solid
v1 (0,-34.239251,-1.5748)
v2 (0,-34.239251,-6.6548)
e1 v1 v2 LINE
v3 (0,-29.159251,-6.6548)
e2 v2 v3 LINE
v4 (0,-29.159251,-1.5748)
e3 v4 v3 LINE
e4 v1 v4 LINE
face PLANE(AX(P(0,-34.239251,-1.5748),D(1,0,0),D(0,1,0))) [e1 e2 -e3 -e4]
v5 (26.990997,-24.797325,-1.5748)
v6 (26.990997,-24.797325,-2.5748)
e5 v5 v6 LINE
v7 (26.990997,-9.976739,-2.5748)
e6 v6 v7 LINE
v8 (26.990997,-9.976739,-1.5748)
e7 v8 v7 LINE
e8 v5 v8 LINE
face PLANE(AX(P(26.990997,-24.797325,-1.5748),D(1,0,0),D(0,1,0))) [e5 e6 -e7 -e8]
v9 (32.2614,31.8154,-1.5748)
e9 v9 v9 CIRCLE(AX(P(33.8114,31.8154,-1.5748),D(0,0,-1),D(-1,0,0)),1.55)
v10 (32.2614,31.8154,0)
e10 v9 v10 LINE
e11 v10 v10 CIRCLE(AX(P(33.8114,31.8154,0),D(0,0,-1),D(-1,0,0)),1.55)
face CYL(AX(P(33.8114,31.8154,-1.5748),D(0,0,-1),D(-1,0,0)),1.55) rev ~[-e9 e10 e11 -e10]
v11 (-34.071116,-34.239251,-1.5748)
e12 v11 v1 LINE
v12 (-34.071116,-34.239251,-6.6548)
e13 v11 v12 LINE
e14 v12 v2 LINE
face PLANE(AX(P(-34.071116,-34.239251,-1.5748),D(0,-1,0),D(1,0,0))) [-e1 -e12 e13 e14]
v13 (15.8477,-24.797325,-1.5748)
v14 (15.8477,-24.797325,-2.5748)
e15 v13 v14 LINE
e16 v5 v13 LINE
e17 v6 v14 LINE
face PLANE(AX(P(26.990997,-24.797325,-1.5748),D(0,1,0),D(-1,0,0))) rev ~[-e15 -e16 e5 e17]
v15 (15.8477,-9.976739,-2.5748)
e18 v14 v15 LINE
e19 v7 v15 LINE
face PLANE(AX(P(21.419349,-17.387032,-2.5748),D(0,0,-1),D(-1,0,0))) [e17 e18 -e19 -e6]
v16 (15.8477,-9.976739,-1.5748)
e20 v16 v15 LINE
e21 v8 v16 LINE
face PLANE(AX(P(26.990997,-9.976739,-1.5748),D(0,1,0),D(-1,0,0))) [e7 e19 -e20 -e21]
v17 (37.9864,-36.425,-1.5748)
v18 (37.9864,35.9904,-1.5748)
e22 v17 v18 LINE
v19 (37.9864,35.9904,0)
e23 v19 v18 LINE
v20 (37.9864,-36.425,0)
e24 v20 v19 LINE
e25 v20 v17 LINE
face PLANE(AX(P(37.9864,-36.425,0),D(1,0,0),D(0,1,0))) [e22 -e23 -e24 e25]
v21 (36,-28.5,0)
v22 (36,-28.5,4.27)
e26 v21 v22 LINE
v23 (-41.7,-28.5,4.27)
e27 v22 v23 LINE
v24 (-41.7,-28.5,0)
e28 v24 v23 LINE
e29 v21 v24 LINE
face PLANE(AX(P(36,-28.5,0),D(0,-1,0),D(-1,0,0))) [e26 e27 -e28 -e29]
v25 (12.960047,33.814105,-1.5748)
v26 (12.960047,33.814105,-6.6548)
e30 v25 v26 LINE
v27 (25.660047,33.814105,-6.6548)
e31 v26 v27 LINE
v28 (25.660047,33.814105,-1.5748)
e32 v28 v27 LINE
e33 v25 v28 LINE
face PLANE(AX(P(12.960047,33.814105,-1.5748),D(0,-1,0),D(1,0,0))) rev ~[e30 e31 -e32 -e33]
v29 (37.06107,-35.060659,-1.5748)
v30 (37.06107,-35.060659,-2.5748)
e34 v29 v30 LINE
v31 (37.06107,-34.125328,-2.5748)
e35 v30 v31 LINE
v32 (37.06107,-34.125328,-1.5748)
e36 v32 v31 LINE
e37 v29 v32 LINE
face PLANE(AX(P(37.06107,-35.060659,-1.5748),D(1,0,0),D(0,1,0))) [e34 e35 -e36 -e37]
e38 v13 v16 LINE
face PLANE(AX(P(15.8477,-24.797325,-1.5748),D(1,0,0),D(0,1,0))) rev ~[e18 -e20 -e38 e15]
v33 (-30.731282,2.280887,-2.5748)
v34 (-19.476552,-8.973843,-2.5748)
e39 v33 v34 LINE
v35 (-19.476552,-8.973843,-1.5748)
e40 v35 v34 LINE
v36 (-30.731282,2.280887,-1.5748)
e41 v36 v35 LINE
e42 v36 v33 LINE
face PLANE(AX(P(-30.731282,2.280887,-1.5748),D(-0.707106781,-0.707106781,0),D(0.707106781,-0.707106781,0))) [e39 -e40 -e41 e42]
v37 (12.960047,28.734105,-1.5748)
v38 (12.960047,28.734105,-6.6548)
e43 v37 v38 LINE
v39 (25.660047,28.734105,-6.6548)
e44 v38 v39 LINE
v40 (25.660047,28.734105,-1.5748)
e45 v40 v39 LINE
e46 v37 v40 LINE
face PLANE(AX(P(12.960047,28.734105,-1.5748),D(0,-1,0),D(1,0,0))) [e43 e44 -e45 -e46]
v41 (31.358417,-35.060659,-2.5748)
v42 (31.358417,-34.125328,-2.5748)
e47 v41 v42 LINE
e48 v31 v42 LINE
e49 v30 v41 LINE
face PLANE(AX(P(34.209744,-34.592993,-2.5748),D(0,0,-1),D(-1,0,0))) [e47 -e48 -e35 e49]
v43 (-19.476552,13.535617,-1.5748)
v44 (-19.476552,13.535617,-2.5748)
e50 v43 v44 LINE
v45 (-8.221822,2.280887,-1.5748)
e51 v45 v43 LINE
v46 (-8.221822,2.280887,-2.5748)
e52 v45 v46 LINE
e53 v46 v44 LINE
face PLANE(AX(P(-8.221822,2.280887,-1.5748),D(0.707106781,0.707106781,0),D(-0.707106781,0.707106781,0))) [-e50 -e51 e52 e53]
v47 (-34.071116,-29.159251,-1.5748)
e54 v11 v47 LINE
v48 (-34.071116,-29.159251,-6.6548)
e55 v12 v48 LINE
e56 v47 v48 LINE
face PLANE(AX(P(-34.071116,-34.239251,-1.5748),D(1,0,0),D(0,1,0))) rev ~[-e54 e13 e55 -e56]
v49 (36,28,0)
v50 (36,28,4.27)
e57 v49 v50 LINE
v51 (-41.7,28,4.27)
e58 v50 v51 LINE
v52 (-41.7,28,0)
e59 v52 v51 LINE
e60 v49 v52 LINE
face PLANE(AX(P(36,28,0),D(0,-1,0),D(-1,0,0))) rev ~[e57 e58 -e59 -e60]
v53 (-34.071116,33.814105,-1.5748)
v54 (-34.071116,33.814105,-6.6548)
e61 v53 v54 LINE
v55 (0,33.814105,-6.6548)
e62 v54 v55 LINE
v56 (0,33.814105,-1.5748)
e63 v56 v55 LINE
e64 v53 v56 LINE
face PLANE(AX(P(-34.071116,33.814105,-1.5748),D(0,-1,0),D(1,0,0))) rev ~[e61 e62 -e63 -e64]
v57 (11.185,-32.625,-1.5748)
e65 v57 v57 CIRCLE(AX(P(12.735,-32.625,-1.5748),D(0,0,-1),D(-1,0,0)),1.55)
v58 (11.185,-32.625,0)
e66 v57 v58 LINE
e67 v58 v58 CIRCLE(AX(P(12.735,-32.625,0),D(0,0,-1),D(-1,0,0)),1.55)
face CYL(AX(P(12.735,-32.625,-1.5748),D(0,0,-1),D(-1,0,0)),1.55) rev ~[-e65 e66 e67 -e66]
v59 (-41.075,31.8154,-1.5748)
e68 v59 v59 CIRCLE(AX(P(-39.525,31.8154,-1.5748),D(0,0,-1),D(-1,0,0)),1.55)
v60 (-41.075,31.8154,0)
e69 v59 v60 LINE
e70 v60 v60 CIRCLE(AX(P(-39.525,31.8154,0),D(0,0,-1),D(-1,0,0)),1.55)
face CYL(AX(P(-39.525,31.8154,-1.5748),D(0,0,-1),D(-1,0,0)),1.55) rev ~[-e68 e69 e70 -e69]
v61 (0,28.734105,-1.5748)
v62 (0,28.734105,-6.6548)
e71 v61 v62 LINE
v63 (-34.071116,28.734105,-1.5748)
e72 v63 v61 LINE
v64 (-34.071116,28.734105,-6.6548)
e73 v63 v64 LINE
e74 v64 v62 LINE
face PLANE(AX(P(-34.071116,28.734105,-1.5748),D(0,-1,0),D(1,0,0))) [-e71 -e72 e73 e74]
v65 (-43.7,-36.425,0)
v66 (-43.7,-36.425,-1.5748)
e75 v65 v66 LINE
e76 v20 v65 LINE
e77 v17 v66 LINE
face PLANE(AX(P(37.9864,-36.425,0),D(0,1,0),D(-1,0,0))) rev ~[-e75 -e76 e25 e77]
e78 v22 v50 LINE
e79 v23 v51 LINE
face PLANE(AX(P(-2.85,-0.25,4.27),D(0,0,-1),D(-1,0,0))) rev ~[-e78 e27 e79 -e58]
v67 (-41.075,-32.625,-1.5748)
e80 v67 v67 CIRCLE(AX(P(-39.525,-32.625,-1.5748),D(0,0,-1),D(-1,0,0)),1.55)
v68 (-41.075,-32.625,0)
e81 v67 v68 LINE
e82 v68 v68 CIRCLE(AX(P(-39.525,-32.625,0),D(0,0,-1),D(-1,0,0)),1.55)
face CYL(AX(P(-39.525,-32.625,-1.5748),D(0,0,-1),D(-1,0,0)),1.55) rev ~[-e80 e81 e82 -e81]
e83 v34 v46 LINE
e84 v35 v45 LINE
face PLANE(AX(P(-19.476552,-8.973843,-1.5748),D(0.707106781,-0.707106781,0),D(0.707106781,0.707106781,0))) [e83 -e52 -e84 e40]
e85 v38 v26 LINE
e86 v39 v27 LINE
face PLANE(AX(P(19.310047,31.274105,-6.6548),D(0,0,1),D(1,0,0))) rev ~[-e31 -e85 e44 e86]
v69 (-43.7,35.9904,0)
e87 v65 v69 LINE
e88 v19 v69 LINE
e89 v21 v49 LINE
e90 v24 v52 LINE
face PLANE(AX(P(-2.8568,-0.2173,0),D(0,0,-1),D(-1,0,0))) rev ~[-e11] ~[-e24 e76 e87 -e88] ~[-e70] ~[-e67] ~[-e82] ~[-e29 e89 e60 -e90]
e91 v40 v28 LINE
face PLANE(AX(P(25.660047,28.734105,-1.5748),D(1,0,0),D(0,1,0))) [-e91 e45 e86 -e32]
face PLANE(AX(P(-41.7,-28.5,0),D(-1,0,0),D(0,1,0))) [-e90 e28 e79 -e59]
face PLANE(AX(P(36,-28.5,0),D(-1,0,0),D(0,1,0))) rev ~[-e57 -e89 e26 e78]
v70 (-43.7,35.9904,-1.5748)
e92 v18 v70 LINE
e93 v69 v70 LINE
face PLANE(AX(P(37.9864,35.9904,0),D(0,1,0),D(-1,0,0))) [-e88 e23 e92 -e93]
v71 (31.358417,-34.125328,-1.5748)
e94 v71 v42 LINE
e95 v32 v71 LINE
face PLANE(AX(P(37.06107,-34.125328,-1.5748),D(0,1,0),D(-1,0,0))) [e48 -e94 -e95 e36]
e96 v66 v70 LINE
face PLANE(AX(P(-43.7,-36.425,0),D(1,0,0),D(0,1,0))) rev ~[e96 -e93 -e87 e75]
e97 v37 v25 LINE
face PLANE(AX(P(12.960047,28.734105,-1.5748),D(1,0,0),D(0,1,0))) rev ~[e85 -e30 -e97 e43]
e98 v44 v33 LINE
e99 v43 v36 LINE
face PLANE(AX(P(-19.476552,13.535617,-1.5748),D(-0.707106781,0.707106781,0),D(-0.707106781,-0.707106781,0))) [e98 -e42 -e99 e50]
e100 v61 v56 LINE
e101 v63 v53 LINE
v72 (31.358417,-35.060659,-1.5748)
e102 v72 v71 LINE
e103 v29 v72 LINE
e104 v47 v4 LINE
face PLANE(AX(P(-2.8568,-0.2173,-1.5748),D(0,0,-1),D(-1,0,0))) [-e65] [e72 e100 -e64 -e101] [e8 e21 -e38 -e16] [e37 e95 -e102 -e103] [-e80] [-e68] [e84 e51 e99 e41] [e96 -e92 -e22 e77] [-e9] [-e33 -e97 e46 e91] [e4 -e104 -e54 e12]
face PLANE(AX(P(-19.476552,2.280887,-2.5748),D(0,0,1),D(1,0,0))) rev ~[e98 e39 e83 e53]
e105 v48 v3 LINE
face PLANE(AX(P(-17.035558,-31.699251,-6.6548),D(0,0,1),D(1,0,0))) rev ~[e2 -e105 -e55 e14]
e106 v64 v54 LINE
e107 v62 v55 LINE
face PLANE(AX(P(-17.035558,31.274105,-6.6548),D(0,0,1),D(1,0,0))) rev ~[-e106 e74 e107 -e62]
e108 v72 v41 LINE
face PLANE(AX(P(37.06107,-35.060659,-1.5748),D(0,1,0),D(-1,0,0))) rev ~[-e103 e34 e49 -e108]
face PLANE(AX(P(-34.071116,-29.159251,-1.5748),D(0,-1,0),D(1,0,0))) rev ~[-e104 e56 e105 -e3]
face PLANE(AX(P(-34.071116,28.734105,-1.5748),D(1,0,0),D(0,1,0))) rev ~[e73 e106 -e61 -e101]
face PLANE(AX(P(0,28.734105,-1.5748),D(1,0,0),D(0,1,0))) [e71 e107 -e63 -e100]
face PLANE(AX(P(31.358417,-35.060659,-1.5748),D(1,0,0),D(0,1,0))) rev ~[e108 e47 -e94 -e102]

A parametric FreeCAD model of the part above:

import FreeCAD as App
import Part
import Sketcher
Q = App.Units.Quantity


def add_polygon(sketch, points):
    """Adds a closed chain of lines whose ends are joined by coincident constraints."""
    first, n = sketch.GeometryCount, len(points)
    for a, b in zip(points, points[1:] + points[:1]):
        sketch.addGeometry(Part.LineSegment(App.Vector(*a, 0), App.Vector(*b, 0)), False)
    for i in range(n):
        sketch.addConstraint(Sketcher.Constraint("Coincident", first + i, 2, first + (i + 1) % n, 1))

doc = App.newDocument("Part")
body = doc.addObject("PartDesign::Body", "Body")

sketch1 = doc.addObject("Sketcher::SketchObject", "Sketch")
body.addObject(sketch1)
sketch1.AttachmentSupport = (doc.XY_Plane, [""])
sketch1.MapMode = "FlatFace"
add_polygon(sketch1, [(38, 36), (38, -36), (-44, -36), (-44, 36)])
sketch1.addConstraint([
    Sketcher.Constraint("Vertical", 0),
    Sketcher.Constraint("Horizontal", 1),
    Sketcher.Constraint("Vertical", 2),
    Sketcher.Constraint("Horizontal", 3),
    Sketcher.Constraint("DistanceX", 1, 2, 1, 1, Q("3.216 in")),
    Sketcher.Constraint("DistanceY", 0, 2, 0, 1, Q("2.851 in")),
    Sketcher.Constraint("DistanceX", -1, 1, 0, 2, Q("37.9864 mm")),
    Sketcher.Constraint("DistanceY", 0, 2, -1, 1, Q("36.425 mm")),
])
pad1 = doc.addObject("PartDesign::Pad", "Pad")
body.addObject(pad1)
pad1.Profile = sketch1
pad1.Length = Q("0.062 in")
pad1.Reversed = True

sketch2 = doc.addObject("Sketcher::SketchObject", "Sketch001")
body.addObject(sketch2)
sketch2.AttachmentSupport = (doc.XY_Plane, [""])
sketch2.MapMode = "FlatFace"
add_polygon(sketch2, [(36, 28), (36, -28), (-42, -28), (-42, 28)])
sketch2.addConstraint([
    Sketcher.Constraint("Vertical", 0),
    Sketcher.Constraint("Horizontal", 1),
    Sketcher.Constraint("Vertical", 2),
    Sketcher.Constraint("Horizontal", 3),
    Sketcher.Constraint("DistanceX", 1, 2, 1, 1, Q("77.7 mm")),
    Sketcher.Constraint("DistanceY", 0, 2, 0, 1, Q("56.5 mm")),
    Sketcher.Constraint("DistanceX", -1, 1, 0, 2, Q("36 mm")),
    Sketcher.Constraint("DistanceY", 0, 2, -1, 1, Q("28.5 mm")),
])
pad2 = doc.addObject("PartDesign::Pad", "Pad001")
body.addObject(pad2)
pad2.Profile = sketch2
pad2.Length = 4.27

sketch3 = doc.addObject("Sketcher::SketchObject", "Sketch002")
body.addObject(sketch3)
sketch3.AttachmentSupport = (doc.XY_Plane, [""])
sketch3.MapMode = "FlatFace"
sketch3.AttachmentOffset = App.Placement(App.Vector(0, 0, -0.062 * 25.4), App.Rotation())
sketch3.addGeometry([
    Part.Circle(App.Vector(-39.5, 31.8, 0), App.Vector(0, 0, 1), 1.6),
    Part.Circle(App.Vector(-39.5, -32.6, 0), App.Vector(0, 0, 1), 1.6),
    Part.Circle(App.Vector(12.7, -32.6, 0), App.Vector(0, 0, 1), 1.6),
    Part.Circle(App.Vector(33.8, 31.8, 0), App.Vector(0, 0, 1), 1.6),
], False)
sketch3.addConstraint([
    Sketcher.Constraint("Equal", 0, 1),
    Sketcher.Constraint("Equal", 1, 2),
    Sketcher.Constraint("Equal", 2, 3),
    Sketcher.Constraint("Horizontal", 1, 3, 2, 3),
    Sketcher.Constraint("Horizontal", 0, 3, 3, 3),
    Sketcher.Constraint("Vertical", 0, 3, 1, 3),
    Sketcher.Constraint("Diameter", 0, Q("3.1 mm")),
    Sketcher.Constraint("DistanceX", 0, 3, -1, 1, Q("39.525 mm")),
    Sketcher.Constraint("DistanceY", -1, 1, 0, 3, Q("31.8154 mm")),
    Sketcher.Constraint("DistanceY", 1, 3, -1, 1, Q("32.625 mm")),
    Sketcher.Constraint("DistanceX", -1, 1, 2, 3, Q("12.735 mm")),
    Sketcher.Constraint("DistanceX", -1, 1, 3, 3, Q("33.8114 mm")),
])
pocket1 = doc.addObject("PartDesign::Pocket", "Pocket")
body.addObject(pocket1)
pocket1.Profile = sketch3
pocket1.Type = "ThroughAll"
pocket1.Reversed = True

sketch4 = doc.addObject("Sketcher::SketchObject", "Sketch003")
body.addObject(sketch4)
sketch4.AttachmentSupport = (doc.XY_Plane, [""])
sketch4.MapMode = "FlatFace"
sketch4.AttachmentOffset = App.Placement(App.Vector(0, 0, -0.062 * 25.4), App.Rotation())
add_polygon(sketch4, [(13, 34), (13, 29), (26, 29), (26, 34)])
add_polygon(sketch4, [(-34, 34), (-34, 29), (0, 29), (0, 34)])
add_polygon(sketch4, [(-34, -29), (-34, -34), (0, -34), (0, -29)])
sketch4.addConstraint([
    Sketcher.Constraint("Vertical", 0),
    Sketcher.Constraint("Horizontal", 1),
    Sketcher.Constraint("Vertical", 2),
    Sketcher.Constraint("Horizontal", 3),
    Sketcher.Constraint("Vertical", 4),
    Sketcher.Constraint("Horizontal", 5),
    Sketcher.Constraint("Vertical", 6),
    Sketcher.Constraint("Horizontal", 7),
    Sketcher.Constraint("Vertical", 8),
    Sketcher.Constraint("Horizontal", 9),
    Sketcher.Constraint("Vertical", 10),
    Sketcher.Constraint("Horizontal", 11),
    Sketcher.Constraint("PointOnObject", 5, 2, -2),
    Sketcher.Constraint("PointOnObject", 9, 2, -2),
    Sketcher.Constraint("Horizontal", 1, 2, 4, 2),
    Sketcher.Constraint("Horizontal", 3, 2, 6, 2),
    Sketcher.Constraint("Vertical", 7, 2, 8, 2),
    Sketcher.Constraint("Equal", 6, 8),
    Sketcher.Constraint("DistanceX", 1, 1, 1, 2, Q("0.5 in")),
    Sketcher.Constraint("DistanceY", 0, 2, 0, 1, Q("0.2 in")),
    Sketcher.Constraint("DistanceX", 5, 1, 5, 2, Q("34.071116 mm")),
    Sketcher.Constraint("DistanceY", 8, 2, -1, 1, Q("34.239251 mm")),
    Sketcher.Constraint("DistanceX", -1, 1, 0, 2, Q("12.960047 mm")),
    Sketcher.Constraint("DistanceY", -1, 1, 0, 2, Q("28.734105 mm")),
])
pad3 = doc.addObject("PartDesign::Pad", "Pad002")
body.addObject(pad3)
pad3.Profile = sketch4
pad3.Length = Q("0.2 in")
pad3.Reversed = True

sketch5 = doc.addObject("Sketcher::SketchObject", "Sketch004")
body.addObject(sketch5)
sketch5.AttachmentSupport = (doc.XY_Plane, [""])
sketch5.MapMode = "FlatFace"
sketch5.AttachmentOffset = App.Placement(App.Vector(0, 0, -0.062 * 25.4), App.Rotation())
add_polygon(sketch5, [(-30.7, 2.3), (-19.5, 13.5), (-8.2, 2.3), (-19.5, -9)])
add_polygon(sketch5, [(27, -10), (27, -24.8), (15.8, -24.8), (15.8, -10)])
add_polygon(sketch5, [(37.1, -34.1), (37.1, -35.1), (31.4, -35.1), (31.4, -34.1)])
sketch5.addConstraint([
    Sketcher.Constraint("Vertical", 4),
    Sketcher.Constraint("Horizontal", 5),
    Sketcher.Constraint("Vertical", 6),
    Sketcher.Constraint("Horizontal", 7),
    Sketcher.Constraint("Vertical", 8),
    Sketcher.Constraint("Horizontal", 9),
    Sketcher.Constraint("Vertical", 10),
    Sketcher.Constraint("Horizontal", 11),
    Sketcher.Constraint("Perpendicular", 0, 1),
    Sketcher.Constraint("Perpendicular", 1, 2),
    Sketcher.Constraint("Perpendicular", 2, 3),
    Sketcher.Constraint("Horizontal", 1, 2, 3, 2),
    Sketcher.Constraint("Vertical", 0, 2, 2, 2),
    Sketcher.Constraint("DistanceY", 8, 2, 8, 1, Q("0.935331 mm")),
    Sketcher.Constraint("DistanceX", -1, 1, 5, 2, Q("15.8477 mm")),
    Sketcher.Constraint("Distance", 0, Q("15.916592 mm")),
    Sketcher.Constraint("DistanceX", 5, 2, 5, 1, Q("11.143297 mm")),
    Sketcher.Constraint("DistanceX", 9, 2, 9, 1, Q("5.702653 mm")),
    Sketcher.Constraint("DistanceY", 4, 2, 4, 1, Q("14.820585 mm")),
    Sketcher.Constraint("DistanceX", 0, 2, -1, 1, Q("19.476552 mm")),
    Sketcher.Constraint("DistanceY", 6, 2, -1, 1, Q("9.976739 mm")),
    Sketcher.Constraint("DistanceX", -1, 1, 8, 2, Q("37.06107 mm")),
    Sketcher.Constraint("DistanceY", 8, 2, -1, 1, Q("35.060659 mm")),
    Sketcher.Constraint("DistanceY", 4, 2, 2, 2, Q("15.823482 mm")),
])
pad4 = doc.addObject("PartDesign::Pad", "Pad003")
body.addObject(pad4)
pad4.Profile = sketch5
pad4.Length = 1
pad4.Reversed = True

doc.recompute()
